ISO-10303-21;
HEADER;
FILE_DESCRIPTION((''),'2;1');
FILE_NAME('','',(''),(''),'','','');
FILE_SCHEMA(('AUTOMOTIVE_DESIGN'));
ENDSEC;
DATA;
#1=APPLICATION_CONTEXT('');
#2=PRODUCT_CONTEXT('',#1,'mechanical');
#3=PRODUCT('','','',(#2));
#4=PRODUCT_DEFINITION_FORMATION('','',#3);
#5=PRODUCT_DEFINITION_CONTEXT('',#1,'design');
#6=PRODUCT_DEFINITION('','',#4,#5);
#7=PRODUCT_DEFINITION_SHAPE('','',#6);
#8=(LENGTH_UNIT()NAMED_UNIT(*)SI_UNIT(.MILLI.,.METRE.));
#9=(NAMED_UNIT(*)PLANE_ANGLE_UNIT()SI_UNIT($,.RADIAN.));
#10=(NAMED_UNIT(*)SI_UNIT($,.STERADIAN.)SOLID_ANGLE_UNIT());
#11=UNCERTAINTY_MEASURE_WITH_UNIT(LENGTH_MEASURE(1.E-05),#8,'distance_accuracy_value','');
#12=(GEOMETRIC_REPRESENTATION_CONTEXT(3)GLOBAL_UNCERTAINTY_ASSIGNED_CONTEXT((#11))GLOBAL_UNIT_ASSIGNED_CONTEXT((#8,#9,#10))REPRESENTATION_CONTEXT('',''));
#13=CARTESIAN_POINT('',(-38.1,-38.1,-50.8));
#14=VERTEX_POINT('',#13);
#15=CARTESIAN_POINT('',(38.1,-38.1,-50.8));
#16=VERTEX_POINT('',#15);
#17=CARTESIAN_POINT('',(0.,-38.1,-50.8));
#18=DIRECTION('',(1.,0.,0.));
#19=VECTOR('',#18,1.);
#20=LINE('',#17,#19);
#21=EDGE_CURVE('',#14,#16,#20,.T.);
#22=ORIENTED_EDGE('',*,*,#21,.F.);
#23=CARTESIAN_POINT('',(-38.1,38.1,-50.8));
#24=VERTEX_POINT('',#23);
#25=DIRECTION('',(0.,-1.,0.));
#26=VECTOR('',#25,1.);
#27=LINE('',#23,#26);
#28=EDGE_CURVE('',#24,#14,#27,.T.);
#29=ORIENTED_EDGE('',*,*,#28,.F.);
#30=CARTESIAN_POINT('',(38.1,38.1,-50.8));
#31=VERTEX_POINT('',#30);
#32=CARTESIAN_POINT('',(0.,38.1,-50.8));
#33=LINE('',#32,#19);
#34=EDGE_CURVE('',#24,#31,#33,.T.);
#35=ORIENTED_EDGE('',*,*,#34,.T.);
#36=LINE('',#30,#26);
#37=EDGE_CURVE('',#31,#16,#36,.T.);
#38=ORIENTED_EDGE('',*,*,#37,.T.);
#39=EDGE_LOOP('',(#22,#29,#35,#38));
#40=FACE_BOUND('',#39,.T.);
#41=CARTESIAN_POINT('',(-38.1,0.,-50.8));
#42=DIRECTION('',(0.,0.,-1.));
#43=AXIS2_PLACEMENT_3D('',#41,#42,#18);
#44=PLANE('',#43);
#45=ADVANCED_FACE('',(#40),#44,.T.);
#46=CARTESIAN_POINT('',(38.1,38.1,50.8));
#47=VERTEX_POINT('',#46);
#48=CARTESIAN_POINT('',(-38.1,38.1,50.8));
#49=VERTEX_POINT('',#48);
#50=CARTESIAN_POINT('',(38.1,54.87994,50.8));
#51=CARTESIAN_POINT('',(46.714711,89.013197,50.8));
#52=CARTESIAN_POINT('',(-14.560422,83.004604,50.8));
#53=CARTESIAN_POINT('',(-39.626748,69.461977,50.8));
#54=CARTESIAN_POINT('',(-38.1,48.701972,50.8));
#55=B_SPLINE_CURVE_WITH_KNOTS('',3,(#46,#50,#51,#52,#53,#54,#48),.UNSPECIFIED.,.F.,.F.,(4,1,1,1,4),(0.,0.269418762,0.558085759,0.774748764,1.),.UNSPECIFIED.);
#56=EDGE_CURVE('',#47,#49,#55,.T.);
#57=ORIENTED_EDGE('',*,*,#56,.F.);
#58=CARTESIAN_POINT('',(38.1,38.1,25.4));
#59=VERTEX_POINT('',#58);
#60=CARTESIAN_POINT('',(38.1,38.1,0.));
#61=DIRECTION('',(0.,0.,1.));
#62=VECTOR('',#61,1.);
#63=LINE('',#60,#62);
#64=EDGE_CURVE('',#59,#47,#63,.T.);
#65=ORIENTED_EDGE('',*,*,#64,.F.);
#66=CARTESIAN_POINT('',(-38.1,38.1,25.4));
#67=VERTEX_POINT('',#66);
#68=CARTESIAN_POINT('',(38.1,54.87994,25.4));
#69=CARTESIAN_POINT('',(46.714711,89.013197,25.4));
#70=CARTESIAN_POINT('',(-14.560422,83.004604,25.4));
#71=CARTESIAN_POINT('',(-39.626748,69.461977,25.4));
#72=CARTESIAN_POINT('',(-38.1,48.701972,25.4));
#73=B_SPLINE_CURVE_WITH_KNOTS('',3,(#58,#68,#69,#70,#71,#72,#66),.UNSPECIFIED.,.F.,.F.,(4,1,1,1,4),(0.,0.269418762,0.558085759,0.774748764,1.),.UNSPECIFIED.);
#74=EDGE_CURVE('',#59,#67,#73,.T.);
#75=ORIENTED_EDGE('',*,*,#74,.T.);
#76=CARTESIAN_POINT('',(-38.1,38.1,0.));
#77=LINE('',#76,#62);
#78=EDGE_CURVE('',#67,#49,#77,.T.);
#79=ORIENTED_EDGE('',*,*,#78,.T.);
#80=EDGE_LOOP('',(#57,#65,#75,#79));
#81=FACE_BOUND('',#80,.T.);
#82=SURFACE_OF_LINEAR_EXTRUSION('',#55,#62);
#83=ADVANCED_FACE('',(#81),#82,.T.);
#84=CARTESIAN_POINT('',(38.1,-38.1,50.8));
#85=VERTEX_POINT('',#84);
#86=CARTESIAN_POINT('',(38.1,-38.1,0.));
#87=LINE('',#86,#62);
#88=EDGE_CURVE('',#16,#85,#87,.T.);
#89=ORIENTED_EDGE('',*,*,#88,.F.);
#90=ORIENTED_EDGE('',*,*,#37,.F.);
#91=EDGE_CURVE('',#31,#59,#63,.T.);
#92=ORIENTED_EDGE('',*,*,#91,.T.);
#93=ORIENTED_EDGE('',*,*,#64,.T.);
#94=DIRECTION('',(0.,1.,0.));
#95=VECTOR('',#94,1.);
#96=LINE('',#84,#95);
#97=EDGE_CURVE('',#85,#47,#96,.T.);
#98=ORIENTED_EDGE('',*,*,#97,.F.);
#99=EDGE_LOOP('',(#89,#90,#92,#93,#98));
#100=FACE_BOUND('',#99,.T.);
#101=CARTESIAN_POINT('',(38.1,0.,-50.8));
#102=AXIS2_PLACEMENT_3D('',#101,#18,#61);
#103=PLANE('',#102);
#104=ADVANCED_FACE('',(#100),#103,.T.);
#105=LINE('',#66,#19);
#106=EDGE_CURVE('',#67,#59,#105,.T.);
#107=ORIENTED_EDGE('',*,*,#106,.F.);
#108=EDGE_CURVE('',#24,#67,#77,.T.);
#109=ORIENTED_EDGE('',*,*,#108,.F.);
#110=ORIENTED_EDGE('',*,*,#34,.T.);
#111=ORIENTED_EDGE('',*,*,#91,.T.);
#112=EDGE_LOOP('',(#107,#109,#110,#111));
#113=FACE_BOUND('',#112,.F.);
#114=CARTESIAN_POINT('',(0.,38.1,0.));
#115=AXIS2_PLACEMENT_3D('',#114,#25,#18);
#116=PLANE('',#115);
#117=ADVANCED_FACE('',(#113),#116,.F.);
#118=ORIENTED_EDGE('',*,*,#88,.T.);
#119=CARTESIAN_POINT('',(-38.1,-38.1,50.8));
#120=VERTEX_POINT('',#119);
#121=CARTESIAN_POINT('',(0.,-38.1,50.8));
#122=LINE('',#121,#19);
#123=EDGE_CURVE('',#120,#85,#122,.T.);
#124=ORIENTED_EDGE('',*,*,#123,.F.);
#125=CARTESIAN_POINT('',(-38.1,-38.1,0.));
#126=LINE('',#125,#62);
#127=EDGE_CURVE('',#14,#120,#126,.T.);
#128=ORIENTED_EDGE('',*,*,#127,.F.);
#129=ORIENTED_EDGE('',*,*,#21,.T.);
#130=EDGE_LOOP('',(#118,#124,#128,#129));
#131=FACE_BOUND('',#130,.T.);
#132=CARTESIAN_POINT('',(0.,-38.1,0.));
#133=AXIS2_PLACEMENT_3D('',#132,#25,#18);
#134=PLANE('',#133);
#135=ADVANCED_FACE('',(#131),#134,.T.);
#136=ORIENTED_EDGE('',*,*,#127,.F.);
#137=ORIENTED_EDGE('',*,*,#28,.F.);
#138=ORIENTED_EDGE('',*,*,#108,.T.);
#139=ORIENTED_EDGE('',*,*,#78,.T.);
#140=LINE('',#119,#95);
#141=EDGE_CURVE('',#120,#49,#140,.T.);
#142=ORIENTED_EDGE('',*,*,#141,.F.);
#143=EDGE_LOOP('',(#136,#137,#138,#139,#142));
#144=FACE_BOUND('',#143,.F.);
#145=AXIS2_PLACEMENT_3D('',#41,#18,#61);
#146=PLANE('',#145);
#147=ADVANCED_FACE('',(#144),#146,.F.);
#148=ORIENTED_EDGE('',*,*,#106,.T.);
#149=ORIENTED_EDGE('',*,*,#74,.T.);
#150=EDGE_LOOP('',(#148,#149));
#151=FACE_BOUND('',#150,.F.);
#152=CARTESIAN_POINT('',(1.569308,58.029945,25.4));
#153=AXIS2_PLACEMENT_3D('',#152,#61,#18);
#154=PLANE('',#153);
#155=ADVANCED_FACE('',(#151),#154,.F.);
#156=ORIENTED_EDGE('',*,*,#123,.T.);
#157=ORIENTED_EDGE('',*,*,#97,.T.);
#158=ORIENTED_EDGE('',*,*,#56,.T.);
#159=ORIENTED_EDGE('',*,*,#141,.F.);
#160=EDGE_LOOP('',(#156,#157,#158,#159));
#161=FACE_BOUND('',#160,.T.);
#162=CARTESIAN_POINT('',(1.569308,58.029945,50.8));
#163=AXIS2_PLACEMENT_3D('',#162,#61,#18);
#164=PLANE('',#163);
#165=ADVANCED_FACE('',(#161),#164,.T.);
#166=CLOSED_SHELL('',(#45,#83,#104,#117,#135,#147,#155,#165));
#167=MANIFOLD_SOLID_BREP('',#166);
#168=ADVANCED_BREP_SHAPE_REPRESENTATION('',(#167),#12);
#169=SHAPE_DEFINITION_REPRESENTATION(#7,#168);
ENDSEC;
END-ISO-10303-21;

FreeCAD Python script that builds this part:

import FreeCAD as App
import Part
import Sketcher

V = App.Vector
Q = App.Units.Quantity

doc = App.newDocument("Part")
body = doc.addObject("PartDesign::Body", "Body")

# Sketch on XZ plane
sketch1 = body.newObject("Sketcher::SketchObject", "Sketch")
sketch1.AttachmentSupport = (doc.getObject("XZ_Plane"), [""])
sketch1.MapMode = "FlatFace"
sketch1.addGeometry(Part.LineSegment(V(-38, 51, 0), V(-38, -51, 0)), False)
sketch1.addGeometry(Part.LineSegment(V(-38, -51, 0), V(38, -51, 0)), False)
sketch1.addGeometry(Part.LineSegment(V(38, -51, 0), V(38, 51, 0)), False)
sketch1.addGeometry(Part.LineSegment(V(38, 51, 0), V(-38, 51, 0)), False)
sketch1.addConstraint(Sketcher.Constraint("Coincident", 0, 2, 1, 1))
sketch1.addConstraint(Sketcher.Constraint("Coincident", 1, 2, 2, 1))
sketch1.addConstraint(Sketcher.Constraint("Coincident", 2, 2, 3, 1))
sketch1.addConstraint(Sketcher.Constraint("Coincident", 3, 2, 0, 1))
sketch1.addConstraint(Sketcher.Constraint("Vertical", 0))
sketch1.addConstraint(Sketcher.Constraint("Horizontal", 1))
sketch1.addConstraint(Sketcher.Constraint("Vertical", 2))
sketch1.addConstraint(Sketcher.Constraint("Horizontal", 3))
sketch1.addConstraint(Sketcher.Constraint("Symmetric", 0, 2, 2, 2, -1, 1))
sketch1.addConstraint(Sketcher.Constraint("DistanceX", 1, 1, 1, 2, Q("3 in")))
sketch1.addConstraint(Sketcher.Constraint("DistanceY", 0, 2, 0, 1, Q("4 in")))
pad1 = body.newObject("PartDesign::Pad", "Pad")
pad1.Profile = sketch1
pad1.Length = Q("3 in")
pad1.Midplane = True

# Sketch on XY plane
sketch2 = body.newObject("Sketcher::SketchObject", "Sketch001")
sketch2.AttachmentSupport = (doc.getObject("XY_Plane"), [""])
sketch2.MapMode = "FlatFace"
sketch2.AttachmentOffset = App.Placement(V(0, 0, 2 * 25.4), App.Rotation())
sketch2.addGeometry(Part.LineSegment(V(-38.1, 38.1, 0), V(38.1, 38.1, 0)), False)
sketch2.addGeometry(Part.BSplineCurve([V(38.1, 38.1, 0), V(38.1, 54.87994, 0), V(46.714711, 89.013197, 0), V(-14.560422, 83.004604, 0), V(-39.626748, 69.461977, 0), V(-38.1, 48.701972, 0), V(-38.1, 38.1, 0)], [4, 1, 1, 1, 4], [0, 0.269418762, 0.558085759, 0.774748764, 1], False, 3, [1, 1, 1, 1, 1, 1, 1], False), False)
sketch2.addConstraint(Sketcher.Constraint("Block", 1))
sketch2.addConstraint(Sketcher.Constraint("Coincident", 0, 1, 1, 2))
sketch2.addConstraint(Sketcher.Constraint("Coincident", 1, 1, 0, 2))
pad2 = body.newObject("PartDesign::Pad", "Pad001")
pad2.Profile = sketch2
pad2.Length = Q("1 in")
pad2.Reversed = True

doc.recompute()
